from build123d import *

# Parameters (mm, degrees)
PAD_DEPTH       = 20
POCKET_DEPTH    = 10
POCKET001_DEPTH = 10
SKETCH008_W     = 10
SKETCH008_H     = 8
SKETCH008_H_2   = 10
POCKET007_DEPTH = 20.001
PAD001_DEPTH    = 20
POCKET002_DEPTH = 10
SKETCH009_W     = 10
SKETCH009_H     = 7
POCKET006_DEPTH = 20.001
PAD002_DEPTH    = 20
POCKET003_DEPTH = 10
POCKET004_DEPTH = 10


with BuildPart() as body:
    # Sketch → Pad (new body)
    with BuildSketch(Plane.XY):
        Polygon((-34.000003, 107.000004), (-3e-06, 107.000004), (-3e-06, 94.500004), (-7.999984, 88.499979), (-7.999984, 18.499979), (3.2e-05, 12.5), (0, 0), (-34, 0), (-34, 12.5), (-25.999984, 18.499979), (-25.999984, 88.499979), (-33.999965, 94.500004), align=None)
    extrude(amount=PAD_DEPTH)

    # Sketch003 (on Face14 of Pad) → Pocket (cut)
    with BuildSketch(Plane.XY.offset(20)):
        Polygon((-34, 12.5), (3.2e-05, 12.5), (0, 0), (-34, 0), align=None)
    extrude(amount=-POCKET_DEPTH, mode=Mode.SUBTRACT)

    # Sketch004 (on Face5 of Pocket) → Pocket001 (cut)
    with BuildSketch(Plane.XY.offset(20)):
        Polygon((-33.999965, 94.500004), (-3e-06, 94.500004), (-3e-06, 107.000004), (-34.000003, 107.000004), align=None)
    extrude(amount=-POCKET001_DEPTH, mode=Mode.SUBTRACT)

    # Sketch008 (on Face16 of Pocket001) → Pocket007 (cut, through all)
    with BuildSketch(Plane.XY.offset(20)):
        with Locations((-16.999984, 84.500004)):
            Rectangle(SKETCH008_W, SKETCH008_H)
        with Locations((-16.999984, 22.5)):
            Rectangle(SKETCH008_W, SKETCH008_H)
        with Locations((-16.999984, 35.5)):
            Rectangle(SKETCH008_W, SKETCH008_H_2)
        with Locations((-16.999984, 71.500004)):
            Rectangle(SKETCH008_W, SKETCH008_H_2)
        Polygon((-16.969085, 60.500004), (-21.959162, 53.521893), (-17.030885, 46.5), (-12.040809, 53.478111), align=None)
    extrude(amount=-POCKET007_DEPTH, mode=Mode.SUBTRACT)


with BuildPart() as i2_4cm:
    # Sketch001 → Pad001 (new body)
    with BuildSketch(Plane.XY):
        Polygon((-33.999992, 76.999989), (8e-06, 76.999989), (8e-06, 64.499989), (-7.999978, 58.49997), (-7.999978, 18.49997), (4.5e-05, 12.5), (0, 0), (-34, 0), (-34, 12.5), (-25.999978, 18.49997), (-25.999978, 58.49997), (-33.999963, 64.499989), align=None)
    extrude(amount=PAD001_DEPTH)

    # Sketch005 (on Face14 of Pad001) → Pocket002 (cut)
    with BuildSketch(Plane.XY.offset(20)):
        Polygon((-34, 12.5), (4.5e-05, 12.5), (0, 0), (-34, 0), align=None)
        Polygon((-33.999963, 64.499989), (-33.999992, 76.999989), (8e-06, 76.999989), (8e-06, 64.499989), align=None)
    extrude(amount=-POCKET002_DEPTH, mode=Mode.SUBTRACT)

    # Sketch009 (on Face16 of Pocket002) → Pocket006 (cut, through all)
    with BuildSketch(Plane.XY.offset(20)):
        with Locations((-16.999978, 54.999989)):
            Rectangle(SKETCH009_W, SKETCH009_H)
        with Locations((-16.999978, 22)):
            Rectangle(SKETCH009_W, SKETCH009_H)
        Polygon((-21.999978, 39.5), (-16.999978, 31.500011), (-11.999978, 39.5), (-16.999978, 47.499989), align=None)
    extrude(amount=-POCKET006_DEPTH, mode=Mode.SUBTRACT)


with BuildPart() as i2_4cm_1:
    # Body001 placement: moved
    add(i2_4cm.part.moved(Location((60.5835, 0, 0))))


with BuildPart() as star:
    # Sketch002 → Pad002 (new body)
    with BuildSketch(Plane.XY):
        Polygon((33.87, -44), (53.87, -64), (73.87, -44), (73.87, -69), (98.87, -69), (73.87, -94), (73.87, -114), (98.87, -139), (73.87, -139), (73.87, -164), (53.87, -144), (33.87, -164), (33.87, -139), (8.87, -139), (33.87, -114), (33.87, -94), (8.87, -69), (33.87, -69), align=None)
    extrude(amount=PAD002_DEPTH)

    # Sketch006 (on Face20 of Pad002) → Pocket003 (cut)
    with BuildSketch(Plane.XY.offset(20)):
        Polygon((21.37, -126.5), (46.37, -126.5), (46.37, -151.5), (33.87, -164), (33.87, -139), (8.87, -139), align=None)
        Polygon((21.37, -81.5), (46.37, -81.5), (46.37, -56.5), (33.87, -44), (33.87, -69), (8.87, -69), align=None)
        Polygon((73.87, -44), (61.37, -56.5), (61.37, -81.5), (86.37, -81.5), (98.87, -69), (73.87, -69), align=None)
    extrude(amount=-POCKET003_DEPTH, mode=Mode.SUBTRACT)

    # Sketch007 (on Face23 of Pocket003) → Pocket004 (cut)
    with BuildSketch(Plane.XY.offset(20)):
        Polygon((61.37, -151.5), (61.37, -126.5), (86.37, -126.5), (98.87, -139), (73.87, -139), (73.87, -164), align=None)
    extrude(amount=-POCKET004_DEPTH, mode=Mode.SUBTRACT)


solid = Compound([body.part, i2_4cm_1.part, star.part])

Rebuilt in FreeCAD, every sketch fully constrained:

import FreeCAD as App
import Part
import Sketcher

V = App.Vector
Q = App.Units.Quantity

doc = App.newDocument("Part")
body = doc.addObject("PartDesign::Body", "Body")

sketch1 = body.newObject("Sketcher::SketchObject", "Sketch")
sketch1.AttachmentSupport = (doc.getObject("XY_Plane"), [""])
sketch1.MapMode = "FlatFace"
sketch1.addGeometry([
    Part.LineSegment(V(-0.000003, 107.000004, 0), V(-34.000003, 107.000004, 0)),
    Part.LineSegment(V(-34.000003, 107.000004, 0), V(-33.999965, 94.500004, 0)),
    Part.LineSegment(V(-33.999965, 94.500004, 0), V(-25.999984, 88.499979, 0)),
    Part.LineSegment(V(-25.999984, 88.499979, 0), V(-25.999984, 18.499979, 0)),
    Part.LineSegment(V(-25.999984, 18.499979, 0), V(-34, 12.5, 0)),
    Part.LineSegment(V(-34, 12.5, 0), V(-34, 0, 0)),
    Part.LineSegment(V(-34, 0, 0), V(0, 0, 0)),
    Part.LineSegment(V(0, 0, 0), V(0.000032, 12.5, 0)),
    Part.LineSegment(V(0.000032, 12.5, 0), V(-7.999984, 18.499979, 0)),
    Part.LineSegment(V(-7.999984, 18.499979, 0), V(-7.999984, 88.499979, 0)),
    Part.LineSegment(V(-7.999984, 88.499979, 0), V(-0.000003, 94.500004, 0)),
    Part.LineSegment(V(-0.000003, 94.500004, 0), V(-0.000003, 107.000004, 0)),
], False)
sketch1.addConstraint([
    Sketcher.Constraint("Coincident", 0, 2, 1, 1),
    Sketcher.Constraint("Coincident", 1, 2, 2, 1),
    Sketcher.Constraint("Coincident", 2, 2, 3, 1),
    Sketcher.Constraint("Coincident", 3, 2, 4, 1),
    Sketcher.Constraint("Coincident", 4, 2, 5, 1),
    Sketcher.Constraint("Coincident", 5, 2, 6, 1),
    Sketcher.Constraint("Coincident", 6, 2, 7, 1),
    Sketcher.Constraint("Coincident", 7, 2, 8, 1),
    Sketcher.Constraint("Coincident", 8, 2, 9, 1),
    Sketcher.Constraint("Coincident", 9, 2, 10, 1),
    Sketcher.Constraint("Coincident", 10, 2, 11, 1),
    Sketcher.Constraint("Coincident", 11, 2, 0, 1),
    Sketcher.Constraint("Horizontal", 0),
    Sketcher.Constraint("Vertical", 3),
    Sketcher.Constraint("Vertical", 5),
    Sketcher.Constraint("Horizontal", 6),
    Sketcher.Constraint("Vertical", 9),
    Sketcher.Constraint("Vertical", 11),
    Sketcher.Constraint("Coincident", 6, 2, -1, 1),
    Sketcher.Constraint("Horizontal", 4, 2, 7, 2),
    Sketcher.Constraint("Horizontal", 3, 2, 8, 2),
    Sketcher.Constraint("Horizontal", 2, 2, 9, 2),
    Sketcher.Constraint("Horizontal", 1, 2, 10, 2),
    Sketcher.Constraint("Equal", 0, 6),
    Sketcher.Constraint("Equal", 5, 11),
    Sketcher.Constraint("Equal", 2, 4),
    Sketcher.Constraint("Equal", 4, 8),
    Sketcher.Constraint("Equal", 8, 10),
    Sketcher.Constraint("DistanceX", 0, 2, 0, 1, Q("34 mm")),
    Sketcher.Constraint("DistanceY", 3, 2, 3, 1, Q("70 mm")),
    Sketcher.Constraint("Distance", 2, Q("10 mm")),
    Sketcher.Constraint("DistanceY", 5, 2, 5, 1, Q("12.5 mm")),
    Sketcher.Constraint("DistanceX", 3, 2, 8, 2, Q("18 mm")),
    Sketcher.Constraint("DistanceY", -1, 1, 2, 2, Q("88.499979 mm")),
    Sketcher.Constraint("DistanceX", 1, 2, 2, 2, Q("7.999981 mm")),
])
pad1 = body.newObject("PartDesign::Pad", "Pad")
pad1.Profile = sketch1
pad1.Length = 20

sketch2 = body.newObject("Sketcher::SketchObject", "Sketch001")
sketch2.AttachmentSupport = (doc.getObject("XY_Plane"), [""])
sketch2.MapMode = "FlatFace"
sketch2.AttachmentOffset = App.Placement(V(0, 0, 20), App.Rotation())
sketch2.addGeometry([
    Part.LineSegment(V(0.000032, 12.5, 0), V(-34, 12.5, 0)),
    Part.LineSegment(V(-34, 12.5, 0), V(-34, 0, 0)),
    Part.LineSegment(V(-34, 0, 0), V(0, 0, 0)),
    Part.LineSegment(V(0, 0, 0), V(0.000032, 12.5, 0)),
], False)
sketch2.addConstraint([
    Sketcher.Constraint("Coincident", 0, 2, 1, 1),
    Sketcher.Constraint("Coincident", 1, 2, 2, 1),
    Sketcher.Constraint("Coincident", 2, 2, 3, 1),
    Sketcher.Constraint("Coincident", 3, 2, 0, 1),
    Sketcher.Constraint("Horizontal", 0),
    Sketcher.Constraint("Vertical", 1),
    Sketcher.Constraint("Horizontal", 2),
    Sketcher.Constraint("Coincident", 2, 2, -1, 1),
    Sketcher.Constraint("DistanceX", 2, 1, 2, 2, Q("34 mm")),
    Sketcher.Constraint("DistanceY", 1, 2, 1, 1, Q("12.5 mm")),
    Sketcher.Constraint("DistanceX", 0, 2, 0, 1, Q("34.000032 mm")),
])
pocket1 = body.newObject("PartDesign::Pocket", "Pocket")
pocket1.Profile = sketch2
pocket1.Length = 10

sketch3 = body.newObject("Sketcher::SketchObject", "Sketch002")
sketch3.AttachmentSupport = (doc.getObject("XY_Plane"), [""])
sketch3.MapMode = "FlatFace"
sketch3.AttachmentOffset = App.Placement(V(0, 0, 20), App.Rotation())
sketch3.addGeometry([
    Part.LineSegment(V(-33.999965, 94.500004, 0), V(-0.000003, 94.500004, 0)),
    Part.LineSegment(V(-0.000003, 94.500004, 0), V(-0.000003, 107.000004, 0)),
    Part.LineSegment(V(-0.000003, 107.000004, 0), V(-34.000003, 107.000004, 0)),
    Part.LineSegment(V(-34.000003, 107.000004, 0), V(-33.999965, 94.500004, 0)),
], False)
sketch3.addConstraint([
    Sketcher.Constraint("Coincident", 0, 2, 1, 1),
    Sketcher.Constraint("Coincident", 1, 2, 2, 1),
    Sketcher.Constraint("Coincident", 2, 2, 3, 1),
    Sketcher.Constraint("Coincident", 3, 2, 0, 1),
    Sketcher.Constraint("Horizontal", 0),
    Sketcher.Constraint("Vertical", 1),
    Sketcher.Constraint("Horizontal", 2),
    Sketcher.Constraint("DistanceX", 2, 2, 2, 1, Q("34 mm")),
    Sketcher.Constraint("DistanceY", 1, 1, 1, 2, Q("12.5 mm")),
    Sketcher.Constraint("DistanceX", 0, 1, 0, 2, Q("33.999962 mm")),
    Sketcher.Constraint("DistanceY", -1, 1, 0, 2, Q("94.500004 mm")),
    Sketcher.Constraint("DistanceX", 2, 2, -1, 1, Q("34.000003 mm")),
])
pocket2 = body.newObject("PartDesign::Pocket", "Pocket001")
pocket2.Profile = sketch3
pocket2.Length = 10

sketch4 = body.newObject("Sketcher::SketchObject", "Sketch003")
sketch4.AttachmentSupport = (doc.getObject("XY_Plane"), [""])
sketch4.MapMode = "FlatFace"
sketch4.AttachmentOffset = App.Placement(V(0, 0, 20), App.Rotation())
sketch4.addGeometry([
    Part.LineSegment(V(-21.999984, 88.500004, 0), V(-21.999984, 80.500004, 0)),
    Part.LineSegment(V(-21.999984, 80.500004, 0), V(-11.999984, 80.500004, 0)),
    Part.LineSegment(V(-11.999984, 80.500004, 0), V(-11.999984, 88.500004, 0)),
    Part.LineSegment(V(-11.999984, 88.500004, 0), V(-21.999984, 88.500004, 0)),
    Part.LineSegment(V(-21.999984, 26.5, 0), V(-21.999984, 18.5, 0)),
    Part.LineSegment(V(-21.999984, 18.5, 0), V(-11.999984, 18.5, 0)),
    Part.LineSegment(V(-11.999984, 18.5, 0), V(-11.999984, 26.5, 0)),
    Part.LineSegment(V(-11.999984, 26.5, 0), V(-21.999984, 26.5, 0)),
    Part.LineSegment(V(-21.999984, 40.5, 0), V(-21.999984, 30.5, 0)),
    Part.LineSegment(V(-21.999984, 30.5, 0), V(-11.999984, 30.5, 0)),
    Part.LineSegment(V(-11.999984, 30.5, 0), V(-11.999984, 40.5, 0)),
    Part.LineSegment(V(-11.999984, 40.5, 0), V(-21.999984, 40.5, 0)),
    Part.LineSegment(V(-21.999984, 76.500004, 0), V(-21.999984, 66.500004, 0)),
    Part.LineSegment(V(-21.999984, 66.500004, 0), V(-11.999984, 66.500004, 0)),
    Part.LineSegment(V(-11.999984, 66.500004, 0), V(-11.999984, 76.500004, 0)),
    Part.LineSegment(V(-11.999984, 76.500004, 0), V(-21.999984, 76.500004, 0)),
    Part.LineSegment(V(-16.969085, 60.500004, 0), V(-21.959162, 53.521893, 0)),
    Part.LineSegment(V(-21.959162, 53.521893, 0), V(-17.030885, 46.5, 0)),
    Part.LineSegment(V(-17.030885, 46.5, 0), V(-12.040809, 53.478111, 0)),
    Part.LineSegment(V(-12.040809, 53.478111, 0), V(-16.969085, 60.500004, 0)),
], False)
sketch4.addConstraint([
    Sketcher.Constraint("Coincident", 0, 2, 1, 1),
    Sketcher.Constraint("Coincident", 1, 2, 2, 1),
    Sketcher.Constraint("Coincident", 2, 2, 3, 1),
    Sketcher.Constraint("Coincident", 3, 2, 0, 1),
    Sketcher.Constraint("Coincident", 4, 2, 5, 1),
    Sketcher.Constraint("Coincident", 5, 2, 6, 1),
    Sketcher.Constraint("Coincident", 6, 2, 7, 1),
    Sketcher.Constraint("Coincident", 7, 2, 4, 1),
    Sketcher.Constraint("Coincident", 8, 2, 9, 1),
    Sketcher.Constraint("Coincident", 9, 2, 10, 1),
    Sketcher.Constraint("Coincident", 10, 2, 11, 1),
    Sketcher.Constraint("Coincident", 11, 2, 8, 1),
    Sketcher.Constraint("Coincident", 12, 2, 13, 1),
    Sketcher.Constraint("Coincident", 13, 2, 14, 1),
    Sketcher.Constraint("Coincident", 14, 2, 15, 1),
    Sketcher.Constraint("Coincident", 15, 2, 12, 1),
    Sketcher.Constraint("Coincident", 16, 2, 17, 1),
    Sketcher.Constraint("Coincident", 17, 2, 18, 1),
    Sketcher.Constraint("Coincident", 18, 2, 19, 1),
    Sketcher.Constraint("Coincident", 19, 2, 16, 1),
    Sketcher.Constraint("Vertical", 0),
    Sketcher.Constraint("Horizontal", 1),
    Sketcher.Constraint("Vertical", 2),
    Sketcher.Constraint("Horizontal", 3),
    Sketcher.Constraint("Vertical", 4),
    Sketcher.Constraint("Horizontal", 5),
    Sketcher.Constraint("Vertical", 6),
    Sketcher.Constraint("Horizontal", 7),
    Sketcher.Constraint("Vertical", 8),
    Sketcher.Constraint("Horizontal", 9),
    Sketcher.Constraint("Vertical", 10),
    Sketcher.Constraint("Horizontal", 11),
    Sketcher.Constraint("Vertical", 12),
    Sketcher.Constraint("Horizontal", 13),
    Sketcher.Constraint("Vertical", 14),
    Sketcher.Constraint("Horizontal", 15),
    Sketcher.Constraint("Parallel", 16, 18),
    Sketcher.Constraint("Parallel", 17, 19),
    Sketcher.Constraint("Vertical", 3, 2, 4, 2),
    Sketcher.Constraint("Vertical", 2, 2, 5, 2),
    Sketcher.Constraint("Vertical", 7, 2, 8, 2),
    Sketcher.Constraint("Vertical", 6, 2, 9, 2),
    Sketcher.Constraint("Vertical", 11, 2, 12, 2),
    Sketcher.Constraint("Vertical", 10, 2, 13, 2),
    Sketcher.Constraint("Equal", 2, 4),
    Sketcher.Constraint("Equal", 15, 8),
    Sketcher.Constraint("Equal", 10, 12),
    Sketcher.Constraint("Equal", 16, 17),
    Sketcher.Constraint("DistanceX", 1, 1, 1, 2, Q("10 mm")),
    Sketcher.Constraint("DistanceY", 0, 2, 0, 1, Q("8 mm")),
    Sketcher.Constraint("DistanceY", 7, 2, 8, 2, Q("4 mm")),
    Sketcher.Constraint("DistanceY", 12, 2, 0, 2, Q("14 mm")),
    Sketcher.Constraint("DistanceY", 11, 2, 17, 2, Q("6 mm")),
    Sketcher.Constraint("DistanceY", 19, 2, 13, 2, Q("6 mm")),
    Sketcher.Constraint("DistanceY", -1, 1, 4, 2, Q("18.5 mm")),
    Sketcher.Constraint("DistanceX", 11, 2, 17, 2, Q("4.969099 mm")),
    Sketcher.Constraint("DistanceX", 19, 2, 13, 2, Q("4.969101 mm")),
    Sketcher.Constraint("DistanceX", 16, 2, -1, 1, Q("21.959162 mm")),
    Sketcher.Constraint("DistanceX", 18, 2, -1, 1, Q("12.040809 mm")),
    Sketcher.Constraint("DistanceY", -1, 1, 18, 2, Q("53.478111 mm")),
])
pocket3 = body.newObject("PartDesign::Pocket", "Pocket002")
pocket3.Profile = sketch4
pocket3.Type = "ThroughAll"
body2 = doc.addObject("PartDesign::Body", "Body001")

sketch5 = body2.newObject("Sketcher::SketchObject", "Sketch004")
sketch5.AttachmentSupport = (doc.getObject("XY_Plane001"), [""])
sketch5.MapMode = "FlatFace"
sketch5.addGeometry([
    Part.LineSegment(V(0.000008, 76.999989, 0), V(-33.999992, 76.999989, 0)),
    Part.LineSegment(V(-33.999992, 76.999989, 0), V(-33.999963, 64.499989, 0)),
    Part.LineSegment(V(-33.999963, 64.499989, 0), V(-25.999978, 58.49997, 0)),
    Part.LineSegment(V(-25.999978, 58.49997, 0), V(-25.999978, 18.49997, 0)),
    Part.LineSegment(V(-25.999978, 18.49997, 0), V(-34, 12.5, 0)),
    Part.LineSegment(V(-34, 12.5, 0), V(-34, 0, 0)),
    Part.LineSegment(V(-34, 0, 0), V(0, 0, 0)),
    Part.LineSegment(V(0, 0, 0), V(0.000045, 12.5, 0)),
    Part.LineSegment(V(0.000045, 12.5, 0), V(-7.999978, 18.49997, 0)),
    Part.LineSegment(V(-7.999978, 18.49997, 0), V(-7.999978, 58.49997, 0)),
    Part.LineSegment(V(-7.999978, 58.49997, 0), V(0.000008, 64.499989, 0)),
    Part.LineSegment(V(0.000008, 64.499989, 0), V(0.000008, 76.999989, 0)),
], False)
sketch5.addConstraint([
    Sketcher.Constraint("Coincident", 0, 2, 1, 1),
    Sketcher.Constraint("Coincident", 1, 2, 2, 1),
    Sketcher.Constraint("Coincident", 2, 2, 3, 1),
    Sketcher.Constraint("Coincident", 3, 2, 4, 1),
    Sketcher.Constraint("Coincident", 4, 2, 5, 1),
    Sketcher.Constraint("Coincident", 5, 2, 6, 1),
    Sketcher.Constraint("Coincident", 6, 2, 7, 1),
    Sketcher.Constraint("Coincident", 7, 2, 8, 1),
    Sketcher.Constraint("Coincident", 8, 2, 9, 1),
    Sketcher.Constraint("Coincident", 9, 2, 10, 1),
    Sketcher.Constraint("Coincident", 10, 2, 11, 1),
    Sketcher.Constraint("Coincident", 11, 2, 0, 1),
    Sketcher.Constraint("Horizontal", 0),
    Sketcher.Constraint("Vertical", 3),
    Sketcher.Constraint("Vertical", 5),
    Sketcher.Constraint("Horizontal", 6),
    Sketcher.Constraint("Vertical", 9),
    Sketcher.Constraint("Vertical", 11),
    Sketcher.Constraint("Coincident", 6, 2, -1, 1),
    Sketcher.Constraint("Horizontal", 4, 2, 7, 2),
    Sketcher.Constraint("Horizontal", 3, 2, 8, 2),
    Sketcher.Constraint("Horizontal", 2, 2, 9, 2),
    Sketcher.Constraint("Horizontal", 1, 2, 10, 2),
    Sketcher.Constraint("Equal", 0, 6),
    Sketcher.Constraint("Equal", 5, 11),
    Sketcher.Constraint("Equal", 2, 4),
    Sketcher.Constraint("Equal", 4, 8),
    Sketcher.Constraint("Equal", 8, 10),
    Sketcher.Constraint("DistanceX", 0, 2, 0, 1, Q("34 mm")),
    Sketcher.Constraint("DistanceY", 3, 2, 3, 1, Q("40 mm")),
    Sketcher.Constraint("Distance", 2, Q("9.999999 mm")),
    Sketcher.Constraint("DistanceY", 5, 2, 5, 1, Q("12.5 mm")),
    Sketcher.Constraint("DistanceX", 3, 2, 8, 2, Q("18 mm")),
    Sketcher.Constraint("DistanceY", -1, 1, 0, 2, Q("76.999989 mm")),
    Sketcher.Constraint("DistanceY", -1, 1, 2, 2, Q("58.49997 mm")),
])
pad2 = body2.newObject("PartDesign::Pad", "Pad001")
pad2.Profile = sketch5
pad2.Length = 20

sketch6 = body2.newObject("Sketcher::SketchObject", "Sketch005")
sketch6.AttachmentSupport = (doc.getObject("XY_Plane001"), [""])
sketch6.MapMode = "FlatFace"
sketch6.AttachmentOffset = App.Placement(V(0, 0, 20), App.Rotation())
sketch6.addGeometry([
    Part.LineSegment(V(0.000045, 12.5, 0), V(-34, 12.5, 0)),
    Part.LineSegment(V(-34, 12.5, 0), V(-34, 0, 0)),
    Part.LineSegment(V(-34, 0, 0), V(0, 0, 0)),
    Part.LineSegment(V(0, 0, 0), V(0.000045, 12.5, 0)),
    Part.LineSegment(V(-33.999992, 76.999989, 0), V(-33.999963, 64.499989, 0)),
    Part.LineSegment(V(-33.999963, 64.499989, 0), V(0.000008, 64.499989, 0)),
    Part.LineSegment(V(0.000008, 64.499989, 0), V(0.000008, 76.999989, 0)),
    Part.LineSegment(V(0.000008, 76.999989, 0), V(-33.999992, 76.999989, 0)),
], False)
sketch6.addConstraint([
    Sketcher.Constraint("Coincident", 0, 2, 1, 1),
    Sketcher.Constraint("Coincident", 1, 2, 2, 1),
    Sketcher.Constraint("Coincident", 2, 2, 3, 1),
    Sketcher.Constraint("Coincident", 3, 2, 0, 1),
    Sketcher.Constraint("Coincident", 4, 2, 5, 1),
    Sketcher.Constraint("Coincident", 5, 2, 6, 1),
    Sketcher.Constraint("Coincident", 6, 2, 7, 1),
    Sketcher.Constraint("Coincident", 7, 2, 4, 1),
    Sketcher.Constraint("Horizontal", 0),
    Sketcher.Constraint("Vertical", 1),
    Sketcher.Constraint("Horizontal", 2),
    Sketcher.Constraint("Horizontal", 5),
    Sketcher.Constraint("Vertical", 6),
    Sketcher.Constraint("Horizontal", 7),
    Sketcher.Constraint("Coincident", 2, 2, -1, 1),
    Sketcher.Constraint("Equal", 2, 7),
    Sketcher.Constraint("Equal", 1, 6),
    Sketcher.Constraint("DistanceX", 2, 1, 2, 2, Q("34 mm")),
    Sketcher.Constraint("DistanceY", 1, 2, 1, 1, Q("12.5 mm")),
    Sketcher.Constraint("DistanceX", 5, 1, 5, 2, Q("33.999971 mm")),
    Sketcher.Constraint("DistanceX", 0, 2, 0, 1, Q("34.000045 mm")),
    Sketcher.Constraint("DistanceY", -1, 1, 4, 2, Q("64.499989 mm")),
    Sketcher.Constraint("DistanceX", 4, 2, -1, 1, Q("33.999963 mm")),
])
pocket4 = body2.newObject("PartDesign::Pocket", "Pocket003")
pocket4.Profile = sketch6
pocket4.Length = 10

sketch7 = body2.newObject("Sketcher::SketchObject", "Sketch006")
sketch7.AttachmentSupport = (doc.getObject("XY_Plane001"), [""])
sketch7.MapMode = "FlatFace"
sketch7.AttachmentOffset = App.Placement(V(0, 0, 20), App.Rotation())
sketch7.addGeometry([
    Part.LineSegment(V(-21.999978, 58.499989, 0), V(-21.999978, 51.499989, 0)),
    Part.LineSegment(V(-21.999978, 51.499989, 0), V(-11.999978, 51.499989, 0)),
    Part.LineSegment(V(-11.999978, 51.499989, 0), V(-11.999978, 58.499989, 0)),
    Part.LineSegment(V(-11.999978, 58.499989, 0), V(-21.999978, 58.499989, 0)),
    Part.LineSegment(V(-21.999978, 25.5, 0), V(-21.999978, 18.5, 0)),
    Part.LineSegment(V(-21.999978, 18.5, 0), V(-11.999978, 18.5, 0)),
    Part.LineSegment(V(-11.999978, 18.5, 0), V(-11.999978, 25.5, 0)),
    Part.LineSegment(V(-11.999978, 25.5, 0), V(-21.999978, 25.5, 0)),
    Part.LineSegment(V(-21.999978, 39.5, 0), V(-16.999978, 31.500011, 0)),
    Part.LineSegment(V(-16.999978, 31.500011, 0), V(-11.999978, 39.5, 0)),
    Part.LineSegment(V(-11.999978, 39.5, 0), V(-16.999978, 47.499989, 0)),
    Part.LineSegment(V(-16.999978, 47.499989, 0), V(-21.999978, 39.5, 0)),
], False)
sketch7.addConstraint([
    Sketcher.Constraint("Coincident", 0, 2, 1, 1),
    Sketcher.Constraint("Coincident", 1, 2, 2, 1),
    Sketcher.Constraint("Coincident", 2, 2, 3, 1),
    Sketcher.Constraint("Coincident", 3, 2, 0, 1),
    Sketcher.Constraint("Coincident", 4, 2, 5, 1),
    Sketcher.Constraint("Coincident", 5, 2, 6, 1),
    Sketcher.Constraint("Coincident", 6, 2, 7, 1),
    Sketcher.Constraint("Coincident", 7, 2, 4, 1),
    Sketcher.Constraint("Coincident", 8, 2, 9, 1),
    Sketcher.Constraint("Coincident", 9, 2, 10, 1),
    Sketcher.Constraint("Coincident", 10, 2, 11, 1),
    Sketcher.Constraint("Coincident", 11, 2, 8, 1),
    Sketcher.Constraint("Vertical", 0),
    Sketcher.Constraint("Horizontal", 1),
    Sketcher.Constraint("Vertical", 2),
    Sketcher.Constraint("Horizontal", 3),
    Sketcher.Constraint("Vertical", 4),
    Sketcher.Constraint("Horizontal", 5),
    Sketcher.Constraint("Vertical", 6),
    Sketcher.Constraint("Horizontal", 7),
    Sketcher.Constraint("Parallel", 8, 10),
    Sketcher.Constraint("Parallel", 9, 11),
    Sketcher.Constraint("Horizontal", 9, 2, 11, 2),
    Sketcher.Constraint("Vertical", 3, 2, 4, 2),
    Sketcher.Constraint("Vertical", 2, 2, 5, 2),
    Sketcher.Constraint("Vertical", 6, 2, 9, 2),
    Sketcher.Constraint("Vertical", 8, 2, 10, 2),
    Sketcher.Constraint("Vertical", 7, 2, 11, 2),
    Sketcher.Constraint("Equal", 2, 4),
    Sketcher.Constraint("DistanceX", 1, 1, 1, 2, Q("10 mm")),
    Sketcher.Constraint("DistanceY", 0, 2, 0, 1, Q("7 mm")),
    Sketcher.Constraint("DistanceY", 6, 2, 9, 2, Q("14 mm")),
    Sketcher.Constraint("DistanceY", 10, 2, 1, 2, Q("4 mm")),
    Sketcher.Constraint("DistanceY", -1, 1, 4, 2, Q("18.5 mm")),
    Sketcher.Constraint("Distance", 8, Q("9.433972 mm")),
    Sketcher.Constraint("DistanceX", 0, 2, -1, 1, Q("21.999978 mm")),
])
pocket5 = body2.newObject("PartDesign::Pocket", "Pocket004")
pocket5.Profile = sketch7
pocket5.Type = "ThroughAll"
body3 = doc.addObject("PartDesign::Body", "Body002")
doc.recompute()

body2.Placement = App.Placement(V(60.5835, 0, 0), App.Rotation(V(0, 0, 1), 0))
boolean = body3.newObject("PartDesign::Boolean", "Boolean")
boolean.Type = "Fuse"
boolean.addObjects([body2])
body4 = doc.addObject("PartDesign::Body", "Body003")

sketch8 = body4.newObject("Sketcher::SketchObject", "Sketch007")
sketch8.AttachmentSupport = (doc.getObject("XY_Plane003"), [""])
sketch8.MapMode = "FlatFace"
sketch8.addGeometry([
    Part.LineSegment(V(53.87, -64, 0), V(33.87, -44, 0)),
    Part.LineSegment(V(33.87, -44, 0), V(33.87, -69, 0)),
    Part.LineSegment(V(33.87, -69, 0), V(8.87, -69, 0)),
    Part.LineSegment(V(8.87, -69, 0), V(33.87, -94, 0)),
    Part.LineSegment(V(33.87, -94, 0), V(33.87, -114, 0)),
    Part.LineSegment(V(33.87, -114, 0), V(8.87, -139, 0)),
    Part.LineSegment(V(8.87, -139, 0), V(33.87, -139, 0)),
    Part.LineSegment(V(33.87, -139, 0), V(33.87, -164, 0)),
    Part.LineSegment(V(33.87, -164, 0), V(53.87, -144, 0)),
    Part.LineSegment(V(53.87, -144, 0), V(73.87, -164, 0)),
    Part.LineSegment(V(73.87, -164, 0), V(73.87, -139, 0)),
    Part.LineSegment(V(73.87, -139, 0), V(98.87, -139, 0)),
    Part.LineSegment(V(98.87, -139, 0), V(73.87, -114, 0)),
    Part.LineSegment(V(73.87, -114, 0), V(73.87, -94, 0)),
    Part.LineSegment(V(73.87, -94, 0), V(98.87, -69, 0)),
    Part.LineSegment(V(98.87, -69, 0), V(73.87, -69, 0)),
    Part.LineSegment(V(73.87, -69, 0), V(73.87, -44, 0)),
    Part.LineSegment(V(73.87, -44, 0), V(53.87, -64, 0)),
], False)
sketch8.addConstraint([
    Sketcher.Constraint("Coincident", 0, 2, 1, 1),
    Sketcher.Constraint("Coincident", 1, 2, 2, 1),
    Sketcher.Constraint("Coincident", 2, 2, 3, 1),
    Sketcher.Constraint("Coincident", 3, 2, 4, 1),
    Sketcher.Constraint("Coincident", 4, 2, 5, 1),
    Sketcher.Constraint("Coincident", 5, 2, 6, 1),
    Sketcher.Constraint("Coincident", 6, 2, 7, 1),
    Sketcher.Constraint("Coincident", 7, 2, 8, 1),
    Sketcher.Constraint("Coincident", 8, 2, 9, 1),
    Sketcher.Constraint("Coincident", 9, 2, 10, 1),
    Sketcher.Constraint("Coincident", 10, 2, 11, 1),
    Sketcher.Constraint("Coincident", 11, 2, 12, 1),
    Sketcher.Constraint("Coincident", 12, 2, 13, 1),
    Sketcher.Constraint("Coincident", 13, 2, 14, 1),
    Sketcher.Constraint("Coincident", 14, 2, 15, 1),
    Sketcher.Constraint("Coincident", 15, 2, 16, 1),
    Sketcher.Constraint("Coincident", 16, 2, 17, 1),
    Sketcher.Constraint("Coincident", 17, 2, 0, 1),
    Sketcher.Constraint("Vertical", 1),
    Sketcher.Constraint("Horizontal", 2),
    Sketcher.Constraint("Vertical", 4),
    Sketcher.Constraint("Horizontal", 6),
    Sketcher.Constraint("Vertical", 7),
    Sketcher.Constraint("Vertical", 10),
    Sketcher.Constraint("Horizontal", 11),
    Sketcher.Constraint("Vertical", 13),
    Sketcher.Constraint("Horizontal", 15),
    Sketcher.Constraint("Vertical", 16),
    Sketcher.Constraint("Parallel", 0, 3),
    Sketcher.Constraint("Perpendicular", 3, 5),
    Sketcher.Constraint("Parallel", 5, 8),
    Sketcher.Constraint("Perpendicular", 8, 9),
    Sketcher.Constraint("Parallel", 9, 12),
    Sketcher.Constraint("Perpendicular", 12, 14),
    Sketcher.Constraint("Parallel", 14, 17),
    Sketcher.Constraint("Horizontal", 7, 2, 9, 2),
    Sketcher.Constraint("Horizontal", 6, 2, 10, 2),
    Sketcher.Constraint("Horizontal", 4, 2, 12, 2),
    Sketcher.Constraint("Horizontal", 3, 2, 13, 2),
    Sketcher.Constraint("Horizontal", 2, 2, 14, 2),
    Sketcher.Constraint("Horizontal", 0, 2, 16, 2),
    Sketcher.Constraint("Vertical", 1, 2, 3, 2),
    Sketcher.Constraint("Vertical", 2, 2, 5, 2),
    Sketcher.Constraint("Vertical", 4, 2, 6, 2),
    Sketcher.Constraint("Vertical", 10, 2, 12, 2),
    Sketcher.Constraint("Vertical", 11, 2, 14, 2),
    Sketcher.Constraint("Vertical", 13, 2, 15, 2),
    Sketcher.Constraint("Equal", 15, 1),
    Sketcher.Constraint("Equal", 1, 7),
    Sketcher.Constraint("DistanceX", 2, 2, 2, 1, Q("25 mm")),
    Sketcher.Constraint("DistanceY", 4, 2, 4, 1, Q("20 mm")),
    Sketcher.Constraint("DistanceY", 0, 2, -1, 1, Q("44 mm")),
    Sketcher.Constraint("DistanceY", 8, 2, -1, 1, Q("144 mm")),
    Sketcher.Constraint("DistanceX", -1, 1, 0, 2, Q("33.87 mm")),
])
pad3 = body4.newObject("PartDesign::Pad", "Pad002")
pad3.Profile = sketch8
pad3.Length = 20

sketch9 = body4.newObject("Sketcher::SketchObject", "Sketch008")
sketch9.AttachmentSupport = (doc.getObject("XY_Plane003"), [""])
sketch9.MapMode = "FlatFace"
sketch9.AttachmentOffset = App.Placement(V(0, 0, 20), App.Rotation())
sketch9.addGeometry([
    Part.LineSegment(V(46.37, -126.5, 0), V(21.37, -126.5, 0)),
    Part.LineSegment(V(21.37, -126.5, 0), V(8.87, -139, 0)),
    Part.LineSegment(V(8.87, -139, 0), V(33.87, -139, 0)),
    Part.LineSegment(V(33.87, -139, 0), V(33.87, -164, 0)),
    Part.LineSegment(V(33.87, -164, 0), V(46.37, -151.5, 0)),
    Part.LineSegment(V(46.37, -151.5, 0), V(46.37, -126.5, 0)),
    Part.LineSegment(V(21.37, -81.5, 0), V(46.37, -81.5, 0)),
    Part.LineSegment(V(46.37, -81.5, 0), V(46.37, -56.5, 0)),
    Part.LineSegment(V(46.37, -56.5, 0), V(33.87, -44, 0)),
    Part.LineSegment(V(33.87, -44, 0), V(33.87, -69, 0)),
    Part.LineSegment(V(33.87, -69, 0), V(8.87, -69, 0)),
    Part.LineSegment(V(8.87, -69, 0), V(21.37, -81.5, 0)),
    Part.LineSegment(V(73.87, -44, 0), V(61.37, -56.5, 0)),
    Part.LineSegment(V(61.37, -56.5, 0), V(61.37, -81.5, 0)),
    Part.LineSegment(V(61.37, -81.5, 0), V(86.37, -81.5, 0)),
    Part.LineSegment(V(86.37, -81.5, 0), V(98.87, -69, 0)),
    Part.LineSegment(V(98.87, -69, 0), V(73.87, -69, 0)),
    Part.LineSegment(V(73.87, -69, 0), V(73.87, -44, 0)),
], False)
sketch9.addConstraint([
    Sketcher.Constraint("Coincident", 0, 2, 1, 1),
    Sketcher.Constraint("Coincident", 1, 2, 2, 1),
    Sketcher.Constraint("Coincident", 2, 2, 3, 1),
    Sketcher.Constraint("Coincident", 3, 2, 4, 1),
    Sketcher.Constraint("Coincident", 4, 2, 5, 1),
    Sketcher.Constraint("Coincident", 5, 2, 0, 1),
    Sketcher.Constraint("Coincident", 6, 2, 7, 1),
    Sketcher.Constraint("Coincident", 7, 2, 8, 1),
    Sketcher.Constraint("Coincident", 8, 2, 9, 1),
    Sketcher.Constraint("Coincident", 9, 2, 10, 1),
    Sketcher.Constraint("Coincident", 10, 2, 11, 1),
    Sketcher.Constraint("Coincident", 11, 2, 6, 1),
    Sketcher.Constraint("Coincident", 12, 2, 13, 1),
    Sketcher.Constraint("Coincident", 13, 2, 14, 1),
    Sketcher.Constraint("Coincident", 14, 2, 15, 1),
    Sketcher.Constraint("Coincident", 15, 2, 16, 1),
    Sketcher.Constraint("Coincident", 16, 2, 17, 1),
    Sketcher.Constraint("Coincident", 17, 2, 12, 1),
    Sketcher.Constraint("Horizontal", 0),
    Sketcher.Constraint("Horizontal", 2),
    Sketcher.Constraint("Vertical", 3),
    Sketcher.Constraint("Vertical", 5),
    Sketcher.Constraint("Horizontal", 6),
    Sketcher.Constraint("Vertical", 7),
    Sketcher.Constraint("Vertical", 9),
    Sketcher.Constraint("Horizontal", 10),
    Sketcher.Constraint("Vertical", 13),
    Sketcher.Constraint("Horizontal", 14),
    Sketcher.Constraint("Horizontal", 16),
    Sketcher.Constraint("Vertical", 17),
    Sketcher.Constraint("Parallel", 1, 4),
    Sketcher.Constraint("Perpendicular", 4, 8),
    Sketcher.Constraint("Parallel", 8, 11),
    Sketcher.Constraint("Perpendicular", 11, 12),
    Sketcher.Constraint("Parallel", 12, 15),
    Sketcher.Constraint("Horizontal", 7, 2, 12, 2),
    Sketcher.Constraint("Horizontal", 11, 2, 13, 2),
    Sketcher.Constraint("Horizontal", 10, 2, 15, 2),
    Sketcher.Constraint("Horizontal", 8, 2, 17, 2),
    Sketcher.Constraint("Vertical", 5, 2, 6, 2),
    Sketcher.Constraint("Vertical", 3, 2, 8, 2),
    Sketcher.Constraint("Vertical", 1, 2, 10, 2),
    Sketcher.Constraint("Vertical", 0, 2, 11, 2),
    Sketcher.Constraint("Equal", 0, 2),
    Sketcher.Constraint("Equal", 10, 14),
    Sketcher.Constraint("Equal", 16, 3),
    Sketcher.Constraint("Equal", 5, 7),
    Sketcher.Constraint("Equal", 4, 8),
    Sketcher.Constraint("DistanceX", 0, 2, 0, 1, Q("25 mm")),
    Sketcher.Constraint("DistanceY", 1, 2, -1, 1, Q("139 mm")),
    Sketcher.Constraint("DistanceY", 8, 2, -1, 1, Q("44 mm")),
    Sketcher.Constraint("DistanceY", 5, 2, 6, 2, Q("45 mm")),
    Sketcher.Constraint("DistanceX", 7, 2, 12, 2, Q("15 mm")),
    Sketcher.Constraint("DistanceX", -1, 1, 0, 2, Q("21.37 mm")),
])
pocket6 = body4.newObject("PartDesign::Pocket", "Pocket005")
pocket6.Profile = sketch9
pocket6.Length = 10

sketch10 = body4.newObject("Sketcher::SketchObject", "Sketch009")
sketch10.AttachmentSupport = (doc.getObject("XY_Plane003"), [""])
sketch10.MapMode = "FlatFace"
sketch10.AttachmentOffset = App.Placement(V(0, 0, 20), App.Rotation())
sketch10.addGeometry([
    Part.LineSegment(V(61.37, -126.5, 0), V(61.37, -151.5, 0)),
    Part.LineSegment(V(61.37, -151.5, 0), V(73.87, -164, 0)),
    Part.LineSegment(V(73.87, -164, 0), V(73.87, -139, 0)),
    Part.LineSegment(V(73.87, -139, 0), V(98.87, -139, 0)),
    Part.LineSegment(V(98.87, -139, 0), V(86.37, -126.5, 0)),
    Part.LineSegment(V(86.37, -126.5, 0), V(61.37, -126.5, 0)),
], False)
sketch10.addConstraint([
    Sketcher.Constraint("Coincident", 0, 2, 1, 1),
    Sketcher.Constraint("Coincident", 1, 2, 2, 1),
    Sketcher.Constraint("Coincident", 2, 2, 3, 1),
    Sketcher.Constraint("Coincident", 3, 2, 4, 1),
    Sketcher.Constraint("Coincident", 4, 2, 5, 1),
    Sketcher.Constraint("Coincident", 5, 2, 0, 1),
    Sketcher.Constraint("Vertical", 0),
    Sketcher.Constraint("Vertical", 2),
    Sketcher.Constraint("Horizontal", 3),
    Sketcher.Constraint("Horizontal", 5),
    Sketcher.Constraint("Parallel", 1, 4),
    Sketcher.Constraint("Equal", 3, 5),
    Sketcher.Constraint("Equal", 5, 0),
    Sketcher.Constraint("DistanceX", 3, 1, 3, 2, Q("25 mm")),
    Sketcher.Constraint("Angle", 1, Q("-45 deg")),
    Sketcher.Constraint("DistanceY", 1, 2, -1, 1, Q("164 mm")),
    Sketcher.Constraint("DistanceY", 0, 2, -1, 1, Q("151.5 mm")),
    Sketcher.Constraint("DistanceX", -1, 1, 0, 2, Q("61.37 mm")),
])
pocket7 = body4.newObject("PartDesign::Pocket", "Pocket006")
pocket7.Profile = sketch10
pocket7.Length = 10

doc.recompute()
